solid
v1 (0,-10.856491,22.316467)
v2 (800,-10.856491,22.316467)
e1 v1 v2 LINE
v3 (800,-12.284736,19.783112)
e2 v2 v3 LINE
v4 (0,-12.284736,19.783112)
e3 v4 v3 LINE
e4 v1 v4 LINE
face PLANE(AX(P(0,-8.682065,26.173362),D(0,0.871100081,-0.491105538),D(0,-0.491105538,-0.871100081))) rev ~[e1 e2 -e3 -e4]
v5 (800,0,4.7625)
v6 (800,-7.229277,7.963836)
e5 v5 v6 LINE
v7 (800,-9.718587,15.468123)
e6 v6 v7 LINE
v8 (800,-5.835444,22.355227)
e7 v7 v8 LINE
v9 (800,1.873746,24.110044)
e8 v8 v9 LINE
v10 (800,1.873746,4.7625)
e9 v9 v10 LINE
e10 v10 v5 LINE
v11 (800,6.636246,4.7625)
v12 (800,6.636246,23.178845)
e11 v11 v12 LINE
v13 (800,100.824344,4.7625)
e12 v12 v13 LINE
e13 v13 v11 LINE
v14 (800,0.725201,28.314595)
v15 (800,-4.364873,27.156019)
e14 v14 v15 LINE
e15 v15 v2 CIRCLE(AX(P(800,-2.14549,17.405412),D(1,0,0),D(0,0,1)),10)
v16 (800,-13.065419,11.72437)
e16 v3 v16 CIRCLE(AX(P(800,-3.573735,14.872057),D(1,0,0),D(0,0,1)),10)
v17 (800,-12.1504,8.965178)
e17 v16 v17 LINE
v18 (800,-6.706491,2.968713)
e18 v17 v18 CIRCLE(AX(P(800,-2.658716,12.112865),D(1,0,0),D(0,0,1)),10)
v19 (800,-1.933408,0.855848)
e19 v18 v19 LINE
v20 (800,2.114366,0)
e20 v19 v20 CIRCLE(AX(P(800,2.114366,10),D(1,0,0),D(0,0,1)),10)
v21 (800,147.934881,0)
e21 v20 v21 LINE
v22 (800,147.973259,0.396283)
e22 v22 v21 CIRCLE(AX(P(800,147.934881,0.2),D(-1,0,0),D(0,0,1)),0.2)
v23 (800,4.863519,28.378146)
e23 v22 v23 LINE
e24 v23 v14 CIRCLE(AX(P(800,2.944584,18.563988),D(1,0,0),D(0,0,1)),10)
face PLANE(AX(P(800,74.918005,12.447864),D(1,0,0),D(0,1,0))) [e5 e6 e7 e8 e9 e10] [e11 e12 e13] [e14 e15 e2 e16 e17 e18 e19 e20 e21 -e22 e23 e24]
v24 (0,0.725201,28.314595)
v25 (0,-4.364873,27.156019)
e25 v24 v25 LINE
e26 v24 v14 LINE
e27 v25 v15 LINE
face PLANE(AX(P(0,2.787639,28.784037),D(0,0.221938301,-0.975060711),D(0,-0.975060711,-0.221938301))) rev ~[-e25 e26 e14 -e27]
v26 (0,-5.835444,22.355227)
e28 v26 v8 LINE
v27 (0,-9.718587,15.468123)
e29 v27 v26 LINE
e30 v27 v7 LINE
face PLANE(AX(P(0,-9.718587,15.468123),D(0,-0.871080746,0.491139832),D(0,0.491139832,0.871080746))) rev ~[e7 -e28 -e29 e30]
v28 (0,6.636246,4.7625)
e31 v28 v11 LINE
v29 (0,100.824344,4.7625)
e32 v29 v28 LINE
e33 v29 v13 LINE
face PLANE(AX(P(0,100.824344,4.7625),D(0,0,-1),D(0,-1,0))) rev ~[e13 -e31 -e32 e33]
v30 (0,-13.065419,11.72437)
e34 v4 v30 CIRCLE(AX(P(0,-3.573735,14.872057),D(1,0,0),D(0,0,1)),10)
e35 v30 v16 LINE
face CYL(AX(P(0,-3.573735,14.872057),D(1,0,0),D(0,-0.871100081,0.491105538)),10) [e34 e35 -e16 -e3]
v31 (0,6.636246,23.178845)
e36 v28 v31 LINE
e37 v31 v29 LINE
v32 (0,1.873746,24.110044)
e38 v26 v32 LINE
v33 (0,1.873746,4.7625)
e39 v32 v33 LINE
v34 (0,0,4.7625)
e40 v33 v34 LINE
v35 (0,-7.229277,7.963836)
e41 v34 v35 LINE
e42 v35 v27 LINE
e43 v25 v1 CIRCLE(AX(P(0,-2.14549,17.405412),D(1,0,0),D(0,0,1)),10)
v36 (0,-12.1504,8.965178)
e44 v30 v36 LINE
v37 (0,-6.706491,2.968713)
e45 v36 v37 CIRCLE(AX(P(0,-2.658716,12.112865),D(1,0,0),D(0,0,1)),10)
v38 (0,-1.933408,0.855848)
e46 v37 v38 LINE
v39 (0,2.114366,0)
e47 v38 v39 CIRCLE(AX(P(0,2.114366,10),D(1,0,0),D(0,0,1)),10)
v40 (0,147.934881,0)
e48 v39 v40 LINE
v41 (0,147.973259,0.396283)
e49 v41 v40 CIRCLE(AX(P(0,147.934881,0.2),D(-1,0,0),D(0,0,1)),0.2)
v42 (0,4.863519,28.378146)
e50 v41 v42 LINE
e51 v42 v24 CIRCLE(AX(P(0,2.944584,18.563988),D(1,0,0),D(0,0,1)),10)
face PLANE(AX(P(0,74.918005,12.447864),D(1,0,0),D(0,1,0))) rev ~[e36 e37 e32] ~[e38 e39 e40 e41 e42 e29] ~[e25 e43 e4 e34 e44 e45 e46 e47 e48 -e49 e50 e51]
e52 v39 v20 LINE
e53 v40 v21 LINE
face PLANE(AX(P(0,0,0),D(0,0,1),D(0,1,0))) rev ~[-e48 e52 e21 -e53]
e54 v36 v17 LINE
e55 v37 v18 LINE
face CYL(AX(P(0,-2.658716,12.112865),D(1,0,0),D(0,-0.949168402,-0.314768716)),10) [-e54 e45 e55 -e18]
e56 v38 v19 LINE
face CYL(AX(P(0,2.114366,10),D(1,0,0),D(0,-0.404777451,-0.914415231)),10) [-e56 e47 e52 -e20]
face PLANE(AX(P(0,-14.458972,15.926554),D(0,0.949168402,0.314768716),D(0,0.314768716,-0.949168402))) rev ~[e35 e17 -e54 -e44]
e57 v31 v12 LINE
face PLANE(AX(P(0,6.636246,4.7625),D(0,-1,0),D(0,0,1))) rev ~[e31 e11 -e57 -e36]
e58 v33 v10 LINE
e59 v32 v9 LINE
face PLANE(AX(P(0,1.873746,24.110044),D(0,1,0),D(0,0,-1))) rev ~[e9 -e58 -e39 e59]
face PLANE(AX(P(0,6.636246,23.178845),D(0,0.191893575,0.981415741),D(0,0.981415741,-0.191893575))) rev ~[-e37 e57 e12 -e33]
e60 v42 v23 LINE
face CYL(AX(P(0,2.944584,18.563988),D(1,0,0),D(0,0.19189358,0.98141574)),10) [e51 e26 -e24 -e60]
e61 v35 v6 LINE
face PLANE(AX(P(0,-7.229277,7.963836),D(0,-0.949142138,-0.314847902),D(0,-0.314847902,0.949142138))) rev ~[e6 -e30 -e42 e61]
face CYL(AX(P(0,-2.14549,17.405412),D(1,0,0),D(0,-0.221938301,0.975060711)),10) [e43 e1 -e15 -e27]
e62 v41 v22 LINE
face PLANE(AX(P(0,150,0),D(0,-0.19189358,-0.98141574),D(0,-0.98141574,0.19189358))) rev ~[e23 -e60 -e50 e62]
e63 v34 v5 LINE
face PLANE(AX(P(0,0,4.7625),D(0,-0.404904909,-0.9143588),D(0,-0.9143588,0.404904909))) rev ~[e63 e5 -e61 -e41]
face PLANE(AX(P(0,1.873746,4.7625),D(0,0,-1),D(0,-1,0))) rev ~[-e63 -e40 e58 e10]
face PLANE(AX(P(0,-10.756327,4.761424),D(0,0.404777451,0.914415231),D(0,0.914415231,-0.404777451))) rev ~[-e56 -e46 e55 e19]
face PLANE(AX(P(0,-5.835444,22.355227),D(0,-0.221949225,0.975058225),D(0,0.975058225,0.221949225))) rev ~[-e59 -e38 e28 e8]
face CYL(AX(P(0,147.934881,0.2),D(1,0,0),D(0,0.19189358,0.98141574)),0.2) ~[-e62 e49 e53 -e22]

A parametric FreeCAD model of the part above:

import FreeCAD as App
import Part
import Sketcher

V = App.Vector
Q = App.Units.Quantity


def edges_at(feature, points):
    """Names of the edges that pass closest to the given points."""
    edges = feature.Shape.Edges
    near = lambda p: min(range(len(edges)), key=lambda i: edges[i].distToShape(Part.Vertex(*p))[0])
    return sorted({f"Edge{near(p) + 1}" for p in points})

doc = App.newDocument("Part")
body = doc.addObject("PartDesign::Body", "Body")

# Sketch on YZ plane
sketch1 = body.newObject("Sketcher::SketchObject", "Sketch")
sketch1.AttachmentSupport = (doc.getObject("YZ_Plane"), [""])
sketch1.MapMode = "FlatFace"
sketch1.addGeometry([
    Part.LineSegment(V(150, 0, 0), V(2.787639, 28.784037, 0)),  # 0
    Part.LineSegment(V(2.787639, 28.784037, 0), V(-8.682065, 26.173362, 0)),  # 1
    Part.LineSegment(V(-8.682065, 26.173362, 0), V(-14.458972, 15.926554, 0)),  # 2
    Part.LineSegment(V(-14.458972, 15.926554, 0), V(-10.756327, 4.761424, 0)),  # 3
    Part.LineSegment(V(-10.756327, 4.761424, 0), V(0, 0, 0)),  # 4
    Part.LineSegment(V(0, 0, 0), V(150, 0, 0)),  # 5
    Part.LineSegment(V(-5.835444, 22.355227, 0), V(1.873746, 24.110044, 0)),  # 6
    Part.LineSegment(V(1.873746, 24.110044, 0), V(1.873746, 4.7625, 0)),  # 7
    Part.LineSegment(V(1.873746, 4.7625, 0), V(0, 4.7625, 0)),  # 8
    Part.LineSegment(V(0, 4.7625, 0), V(-7.229277, 7.963836, 0)),  # 9
    Part.LineSegment(V(-7.229277, 7.963836, 0), V(-9.718587, 15.468123, 0)),  # 10
    Part.LineSegment(V(-9.718587, 15.468123, 0), V(-5.835444, 22.355227, 0)),  # 11
    Part.LineSegment(V(6.636246, 23.178845, 0), V(100.824344, 4.7625, 0)),  # 12
    Part.LineSegment(V(100.824344, 4.7625, 0), V(6.636246, 4.7625, 0)),  # 13
    Part.LineSegment(V(6.636246, 4.7625, 0), V(6.636246, 23.178845, 0)),  # 14
], False)
sketch1.addConstraint([
    Sketcher.Constraint("Coincident", 0, 2, 1, 1),
    Sketcher.Constraint("Coincident", 1, 2, 2, 1),
    Sketcher.Constraint("Coincident", 2, 2, 3, 1),
    Sketcher.Constraint("Coincident", 3, 2, 4, 1),
    Sketcher.Constraint("Coincident", 4, 2, 5, 1),
    Sketcher.Constraint("Coincident", 5, 2, 0, 1),
    Sketcher.Constraint("Coincident", 6, 2, 7, 1),
    Sketcher.Constraint("Coincident", 7, 2, 8, 1),
    Sketcher.Constraint("Coincident", 8, 2, 9, 1),
    Sketcher.Constraint("Coincident", 9, 2, 10, 1),
    Sketcher.Constraint("Coincident", 10, 2, 11, 1),
    Sketcher.Constraint("Coincident", 11, 2, 6, 1),
    Sketcher.Constraint("Coincident", 12, 2, 13, 1),
    Sketcher.Constraint("Coincident", 13, 2, 14, 1),
    Sketcher.Constraint("Coincident", 14, 2, 12, 1),
    Sketcher.Constraint("Horizontal", 5),
    Sketcher.Constraint("Vertical", 7),
    Sketcher.Constraint("Horizontal", 8),
    Sketcher.Constraint("Horizontal", 13),
    Sketcher.Constraint("Vertical", 14),
    Sketcher.Constraint("Coincident", 4, 2, -1, 1),
    Sketcher.Constraint("PointOnObject", 8, 2, -2),
    Sketcher.Constraint("Parallel", 0, 12),
    Sketcher.Constraint("Horizontal", 8, 2, 12, 2),
    Sketcher.Constraint("Equal", 1, 2),
    Sketcher.Constraint("Equal", 2, 3),
    Sketcher.Constraint("Equal", 3, 4),
    Sketcher.Constraint("Equal", 6, 9),
    Sketcher.Constraint("Equal", 9, 10),
    Sketcher.Constraint("Equal", 10, 11),
    Sketcher.Constraint("DistanceX", 5, 1, 5, 2, Q("150 mm")),
    Sketcher.Constraint("Distance", 0, Q("150 mm")),
    Sketcher.Constraint("DistanceY", -1, 1, 7, 2, Q("4.7625 mm")),
    Sketcher.Constraint("DistanceY", 3, 2, 10, 2, Q("10.706699 mm")),
    Sketcher.Constraint("DistanceX", 7, 2, 12, 2, Q("98.950598 mm")),
    Sketcher.Constraint("DistanceX", 7, 2, 13, 2, Q("4.7625 mm")),
    Sketcher.Constraint("DistanceY", 14, 2, 6, 2, Q("0.931199 mm")),
    Sketcher.Constraint("Distance", 6, Q("7.906389 mm")),
    Sketcher.Constraint("Distance", 12, Q("95.97166 mm")),
    Sketcher.Constraint("DistanceX", 8, 2, 8, 1, Q("1.873746 mm")),
    Sketcher.Constraint("DistanceX", 2, 2, -1, 1, Q("14.458972 mm")),
    Sketcher.Constraint("DistanceY", 2, 2, 1, 2, Q("10.246808 mm")),
    Sketcher.Constraint("DistanceY", 3, 2, 2, 2, Q("11.16513 mm")),
    Sketcher.Constraint("DistanceX", 3, 2, 9, 2, Q("3.52705 mm")),
])
pad1 = body.newObject("PartDesign::Pad", "Pad")
pad1.Profile = sketch1
pad1.Length = 800
doc.recompute()

fillet = body.newObject("PartDesign::Fillet", "Fillet")
fillet.Base = (pad1, edges_at(pad1, [
    (400, -8.682, 26.173),
    (400, -14.459, 15.927),
    (400, 2.788, 28.784),
    (400, -10.756, 4.761),
    (400, 0, 0),
]))
fillet.Radius = 10
doc.recompute()

fillet2 = body.newObject("PartDesign::Fillet", "Fillet001")
fillet2.Base = (fillet, edges_at(fillet, [(400, 150, 0)]))
fillet2.Radius = 0.2

doc.recompute()
